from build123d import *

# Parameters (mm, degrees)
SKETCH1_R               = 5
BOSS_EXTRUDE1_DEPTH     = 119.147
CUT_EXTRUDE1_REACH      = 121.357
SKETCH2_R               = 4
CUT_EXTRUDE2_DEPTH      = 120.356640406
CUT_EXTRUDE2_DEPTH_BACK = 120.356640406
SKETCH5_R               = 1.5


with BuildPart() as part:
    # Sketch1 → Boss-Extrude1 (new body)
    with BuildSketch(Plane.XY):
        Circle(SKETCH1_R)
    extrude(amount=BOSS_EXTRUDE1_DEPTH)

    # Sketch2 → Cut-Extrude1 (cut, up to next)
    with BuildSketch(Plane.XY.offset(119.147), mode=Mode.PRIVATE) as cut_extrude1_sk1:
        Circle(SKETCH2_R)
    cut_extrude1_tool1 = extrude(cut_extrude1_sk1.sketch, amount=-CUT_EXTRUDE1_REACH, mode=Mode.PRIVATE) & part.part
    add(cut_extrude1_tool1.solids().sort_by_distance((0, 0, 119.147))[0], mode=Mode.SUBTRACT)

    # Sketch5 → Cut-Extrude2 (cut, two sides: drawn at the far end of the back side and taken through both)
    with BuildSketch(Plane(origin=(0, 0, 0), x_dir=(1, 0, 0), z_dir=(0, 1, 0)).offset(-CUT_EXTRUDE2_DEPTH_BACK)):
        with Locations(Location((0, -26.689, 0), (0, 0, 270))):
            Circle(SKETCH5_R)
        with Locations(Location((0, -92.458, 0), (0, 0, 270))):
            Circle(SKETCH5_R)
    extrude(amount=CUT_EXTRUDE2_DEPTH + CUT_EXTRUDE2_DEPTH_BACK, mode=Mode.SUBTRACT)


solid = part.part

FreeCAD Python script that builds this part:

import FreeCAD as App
import Part
import Sketcher

V = App.Vector

doc = App.newDocument("Part")
body = doc.addObject("PartDesign::Body", "Body")

sketch1 = body.newObject("Sketcher::SketchObject", "Sketch")
sketch1.AttachmentSupport = (doc.getObject("XY_Plane"), [""])
sketch1.MapMode = "FlatFace"
sketch1.addGeometry(Part.Circle(V(0, 0, 0), V(0, 0, 1), 5), False)
sketch1.addConstraint(Sketcher.Constraint("Coincident", 0, 3, -1, 1))
sketch1.addConstraint(Sketcher.Constraint("Diameter", 0, 10.0))
pad1 = body.newObject("PartDesign::Pad", "Pad")
pad1.Profile = sketch1
pad1.Length = 119.147

sketch2 = body.newObject("Sketcher::SketchObject", "Sketch001")
sketch2.AttachmentSupport = (doc.getObject("XY_Plane"), [""])
sketch2.MapMode = "FlatFace"
sketch2.AttachmentOffset = App.Placement(V(0, 0, 119.147), App.Rotation())
sketch2.addGeometry(Part.Circle(V(0, 0, 0), V(0, 0, 1), 4), False)
sketch2.addConstraint(Sketcher.Constraint("Coincident", 0, 3, -1, 1))
sketch2.addConstraint(Sketcher.Constraint("Diameter", 0, 8.0))
pocket1 = body.newObject("PartDesign::Pocket", "Pocket")
pocket1.Profile = sketch2
pocket1.Type = "UpToFirst"

sketch3 = body.newObject("Sketcher::SketchObject", "Sketch002")
sketch3.AttachmentSupport = (doc.getObject("XZ_Plane"), [""])
sketch3.MapMode = "FlatFace"
sketch3.addGeometry(Part.Circle(V(0, 26.689, 0), V(0, 0, 1), 1.5), False)
sketch3.addGeometry(Part.Circle(V(0, 92.458, 0), V(0, 0, 1), 1.5), False)
sketch3.addConstraint(Sketcher.Constraint("Equal", 0, 1))
sketch3.addConstraint(Sketcher.Constraint("PointOnObject", 0, 3, -2))
sketch3.addConstraint(Sketcher.Constraint("PointOnObject", 1, 3, -2))
sketch3.addConstraint(Sketcher.Constraint("Diameter", 0, 3.0))
sketch3.addConstraint(Sketcher.Constraint("DistanceY", -1, 1, 0, 3, 26.689))
sketch3.addConstraint(Sketcher.Constraint("DistanceY", -1, 1, 1, 3, 92.458))
pocket2 = body.newObject("PartDesign::Pocket", "Pocket001")
pocket2.Profile = sketch3
pocket2.Type = "ThroughAll"
pocket2.Midplane = True

doc.recompute()
